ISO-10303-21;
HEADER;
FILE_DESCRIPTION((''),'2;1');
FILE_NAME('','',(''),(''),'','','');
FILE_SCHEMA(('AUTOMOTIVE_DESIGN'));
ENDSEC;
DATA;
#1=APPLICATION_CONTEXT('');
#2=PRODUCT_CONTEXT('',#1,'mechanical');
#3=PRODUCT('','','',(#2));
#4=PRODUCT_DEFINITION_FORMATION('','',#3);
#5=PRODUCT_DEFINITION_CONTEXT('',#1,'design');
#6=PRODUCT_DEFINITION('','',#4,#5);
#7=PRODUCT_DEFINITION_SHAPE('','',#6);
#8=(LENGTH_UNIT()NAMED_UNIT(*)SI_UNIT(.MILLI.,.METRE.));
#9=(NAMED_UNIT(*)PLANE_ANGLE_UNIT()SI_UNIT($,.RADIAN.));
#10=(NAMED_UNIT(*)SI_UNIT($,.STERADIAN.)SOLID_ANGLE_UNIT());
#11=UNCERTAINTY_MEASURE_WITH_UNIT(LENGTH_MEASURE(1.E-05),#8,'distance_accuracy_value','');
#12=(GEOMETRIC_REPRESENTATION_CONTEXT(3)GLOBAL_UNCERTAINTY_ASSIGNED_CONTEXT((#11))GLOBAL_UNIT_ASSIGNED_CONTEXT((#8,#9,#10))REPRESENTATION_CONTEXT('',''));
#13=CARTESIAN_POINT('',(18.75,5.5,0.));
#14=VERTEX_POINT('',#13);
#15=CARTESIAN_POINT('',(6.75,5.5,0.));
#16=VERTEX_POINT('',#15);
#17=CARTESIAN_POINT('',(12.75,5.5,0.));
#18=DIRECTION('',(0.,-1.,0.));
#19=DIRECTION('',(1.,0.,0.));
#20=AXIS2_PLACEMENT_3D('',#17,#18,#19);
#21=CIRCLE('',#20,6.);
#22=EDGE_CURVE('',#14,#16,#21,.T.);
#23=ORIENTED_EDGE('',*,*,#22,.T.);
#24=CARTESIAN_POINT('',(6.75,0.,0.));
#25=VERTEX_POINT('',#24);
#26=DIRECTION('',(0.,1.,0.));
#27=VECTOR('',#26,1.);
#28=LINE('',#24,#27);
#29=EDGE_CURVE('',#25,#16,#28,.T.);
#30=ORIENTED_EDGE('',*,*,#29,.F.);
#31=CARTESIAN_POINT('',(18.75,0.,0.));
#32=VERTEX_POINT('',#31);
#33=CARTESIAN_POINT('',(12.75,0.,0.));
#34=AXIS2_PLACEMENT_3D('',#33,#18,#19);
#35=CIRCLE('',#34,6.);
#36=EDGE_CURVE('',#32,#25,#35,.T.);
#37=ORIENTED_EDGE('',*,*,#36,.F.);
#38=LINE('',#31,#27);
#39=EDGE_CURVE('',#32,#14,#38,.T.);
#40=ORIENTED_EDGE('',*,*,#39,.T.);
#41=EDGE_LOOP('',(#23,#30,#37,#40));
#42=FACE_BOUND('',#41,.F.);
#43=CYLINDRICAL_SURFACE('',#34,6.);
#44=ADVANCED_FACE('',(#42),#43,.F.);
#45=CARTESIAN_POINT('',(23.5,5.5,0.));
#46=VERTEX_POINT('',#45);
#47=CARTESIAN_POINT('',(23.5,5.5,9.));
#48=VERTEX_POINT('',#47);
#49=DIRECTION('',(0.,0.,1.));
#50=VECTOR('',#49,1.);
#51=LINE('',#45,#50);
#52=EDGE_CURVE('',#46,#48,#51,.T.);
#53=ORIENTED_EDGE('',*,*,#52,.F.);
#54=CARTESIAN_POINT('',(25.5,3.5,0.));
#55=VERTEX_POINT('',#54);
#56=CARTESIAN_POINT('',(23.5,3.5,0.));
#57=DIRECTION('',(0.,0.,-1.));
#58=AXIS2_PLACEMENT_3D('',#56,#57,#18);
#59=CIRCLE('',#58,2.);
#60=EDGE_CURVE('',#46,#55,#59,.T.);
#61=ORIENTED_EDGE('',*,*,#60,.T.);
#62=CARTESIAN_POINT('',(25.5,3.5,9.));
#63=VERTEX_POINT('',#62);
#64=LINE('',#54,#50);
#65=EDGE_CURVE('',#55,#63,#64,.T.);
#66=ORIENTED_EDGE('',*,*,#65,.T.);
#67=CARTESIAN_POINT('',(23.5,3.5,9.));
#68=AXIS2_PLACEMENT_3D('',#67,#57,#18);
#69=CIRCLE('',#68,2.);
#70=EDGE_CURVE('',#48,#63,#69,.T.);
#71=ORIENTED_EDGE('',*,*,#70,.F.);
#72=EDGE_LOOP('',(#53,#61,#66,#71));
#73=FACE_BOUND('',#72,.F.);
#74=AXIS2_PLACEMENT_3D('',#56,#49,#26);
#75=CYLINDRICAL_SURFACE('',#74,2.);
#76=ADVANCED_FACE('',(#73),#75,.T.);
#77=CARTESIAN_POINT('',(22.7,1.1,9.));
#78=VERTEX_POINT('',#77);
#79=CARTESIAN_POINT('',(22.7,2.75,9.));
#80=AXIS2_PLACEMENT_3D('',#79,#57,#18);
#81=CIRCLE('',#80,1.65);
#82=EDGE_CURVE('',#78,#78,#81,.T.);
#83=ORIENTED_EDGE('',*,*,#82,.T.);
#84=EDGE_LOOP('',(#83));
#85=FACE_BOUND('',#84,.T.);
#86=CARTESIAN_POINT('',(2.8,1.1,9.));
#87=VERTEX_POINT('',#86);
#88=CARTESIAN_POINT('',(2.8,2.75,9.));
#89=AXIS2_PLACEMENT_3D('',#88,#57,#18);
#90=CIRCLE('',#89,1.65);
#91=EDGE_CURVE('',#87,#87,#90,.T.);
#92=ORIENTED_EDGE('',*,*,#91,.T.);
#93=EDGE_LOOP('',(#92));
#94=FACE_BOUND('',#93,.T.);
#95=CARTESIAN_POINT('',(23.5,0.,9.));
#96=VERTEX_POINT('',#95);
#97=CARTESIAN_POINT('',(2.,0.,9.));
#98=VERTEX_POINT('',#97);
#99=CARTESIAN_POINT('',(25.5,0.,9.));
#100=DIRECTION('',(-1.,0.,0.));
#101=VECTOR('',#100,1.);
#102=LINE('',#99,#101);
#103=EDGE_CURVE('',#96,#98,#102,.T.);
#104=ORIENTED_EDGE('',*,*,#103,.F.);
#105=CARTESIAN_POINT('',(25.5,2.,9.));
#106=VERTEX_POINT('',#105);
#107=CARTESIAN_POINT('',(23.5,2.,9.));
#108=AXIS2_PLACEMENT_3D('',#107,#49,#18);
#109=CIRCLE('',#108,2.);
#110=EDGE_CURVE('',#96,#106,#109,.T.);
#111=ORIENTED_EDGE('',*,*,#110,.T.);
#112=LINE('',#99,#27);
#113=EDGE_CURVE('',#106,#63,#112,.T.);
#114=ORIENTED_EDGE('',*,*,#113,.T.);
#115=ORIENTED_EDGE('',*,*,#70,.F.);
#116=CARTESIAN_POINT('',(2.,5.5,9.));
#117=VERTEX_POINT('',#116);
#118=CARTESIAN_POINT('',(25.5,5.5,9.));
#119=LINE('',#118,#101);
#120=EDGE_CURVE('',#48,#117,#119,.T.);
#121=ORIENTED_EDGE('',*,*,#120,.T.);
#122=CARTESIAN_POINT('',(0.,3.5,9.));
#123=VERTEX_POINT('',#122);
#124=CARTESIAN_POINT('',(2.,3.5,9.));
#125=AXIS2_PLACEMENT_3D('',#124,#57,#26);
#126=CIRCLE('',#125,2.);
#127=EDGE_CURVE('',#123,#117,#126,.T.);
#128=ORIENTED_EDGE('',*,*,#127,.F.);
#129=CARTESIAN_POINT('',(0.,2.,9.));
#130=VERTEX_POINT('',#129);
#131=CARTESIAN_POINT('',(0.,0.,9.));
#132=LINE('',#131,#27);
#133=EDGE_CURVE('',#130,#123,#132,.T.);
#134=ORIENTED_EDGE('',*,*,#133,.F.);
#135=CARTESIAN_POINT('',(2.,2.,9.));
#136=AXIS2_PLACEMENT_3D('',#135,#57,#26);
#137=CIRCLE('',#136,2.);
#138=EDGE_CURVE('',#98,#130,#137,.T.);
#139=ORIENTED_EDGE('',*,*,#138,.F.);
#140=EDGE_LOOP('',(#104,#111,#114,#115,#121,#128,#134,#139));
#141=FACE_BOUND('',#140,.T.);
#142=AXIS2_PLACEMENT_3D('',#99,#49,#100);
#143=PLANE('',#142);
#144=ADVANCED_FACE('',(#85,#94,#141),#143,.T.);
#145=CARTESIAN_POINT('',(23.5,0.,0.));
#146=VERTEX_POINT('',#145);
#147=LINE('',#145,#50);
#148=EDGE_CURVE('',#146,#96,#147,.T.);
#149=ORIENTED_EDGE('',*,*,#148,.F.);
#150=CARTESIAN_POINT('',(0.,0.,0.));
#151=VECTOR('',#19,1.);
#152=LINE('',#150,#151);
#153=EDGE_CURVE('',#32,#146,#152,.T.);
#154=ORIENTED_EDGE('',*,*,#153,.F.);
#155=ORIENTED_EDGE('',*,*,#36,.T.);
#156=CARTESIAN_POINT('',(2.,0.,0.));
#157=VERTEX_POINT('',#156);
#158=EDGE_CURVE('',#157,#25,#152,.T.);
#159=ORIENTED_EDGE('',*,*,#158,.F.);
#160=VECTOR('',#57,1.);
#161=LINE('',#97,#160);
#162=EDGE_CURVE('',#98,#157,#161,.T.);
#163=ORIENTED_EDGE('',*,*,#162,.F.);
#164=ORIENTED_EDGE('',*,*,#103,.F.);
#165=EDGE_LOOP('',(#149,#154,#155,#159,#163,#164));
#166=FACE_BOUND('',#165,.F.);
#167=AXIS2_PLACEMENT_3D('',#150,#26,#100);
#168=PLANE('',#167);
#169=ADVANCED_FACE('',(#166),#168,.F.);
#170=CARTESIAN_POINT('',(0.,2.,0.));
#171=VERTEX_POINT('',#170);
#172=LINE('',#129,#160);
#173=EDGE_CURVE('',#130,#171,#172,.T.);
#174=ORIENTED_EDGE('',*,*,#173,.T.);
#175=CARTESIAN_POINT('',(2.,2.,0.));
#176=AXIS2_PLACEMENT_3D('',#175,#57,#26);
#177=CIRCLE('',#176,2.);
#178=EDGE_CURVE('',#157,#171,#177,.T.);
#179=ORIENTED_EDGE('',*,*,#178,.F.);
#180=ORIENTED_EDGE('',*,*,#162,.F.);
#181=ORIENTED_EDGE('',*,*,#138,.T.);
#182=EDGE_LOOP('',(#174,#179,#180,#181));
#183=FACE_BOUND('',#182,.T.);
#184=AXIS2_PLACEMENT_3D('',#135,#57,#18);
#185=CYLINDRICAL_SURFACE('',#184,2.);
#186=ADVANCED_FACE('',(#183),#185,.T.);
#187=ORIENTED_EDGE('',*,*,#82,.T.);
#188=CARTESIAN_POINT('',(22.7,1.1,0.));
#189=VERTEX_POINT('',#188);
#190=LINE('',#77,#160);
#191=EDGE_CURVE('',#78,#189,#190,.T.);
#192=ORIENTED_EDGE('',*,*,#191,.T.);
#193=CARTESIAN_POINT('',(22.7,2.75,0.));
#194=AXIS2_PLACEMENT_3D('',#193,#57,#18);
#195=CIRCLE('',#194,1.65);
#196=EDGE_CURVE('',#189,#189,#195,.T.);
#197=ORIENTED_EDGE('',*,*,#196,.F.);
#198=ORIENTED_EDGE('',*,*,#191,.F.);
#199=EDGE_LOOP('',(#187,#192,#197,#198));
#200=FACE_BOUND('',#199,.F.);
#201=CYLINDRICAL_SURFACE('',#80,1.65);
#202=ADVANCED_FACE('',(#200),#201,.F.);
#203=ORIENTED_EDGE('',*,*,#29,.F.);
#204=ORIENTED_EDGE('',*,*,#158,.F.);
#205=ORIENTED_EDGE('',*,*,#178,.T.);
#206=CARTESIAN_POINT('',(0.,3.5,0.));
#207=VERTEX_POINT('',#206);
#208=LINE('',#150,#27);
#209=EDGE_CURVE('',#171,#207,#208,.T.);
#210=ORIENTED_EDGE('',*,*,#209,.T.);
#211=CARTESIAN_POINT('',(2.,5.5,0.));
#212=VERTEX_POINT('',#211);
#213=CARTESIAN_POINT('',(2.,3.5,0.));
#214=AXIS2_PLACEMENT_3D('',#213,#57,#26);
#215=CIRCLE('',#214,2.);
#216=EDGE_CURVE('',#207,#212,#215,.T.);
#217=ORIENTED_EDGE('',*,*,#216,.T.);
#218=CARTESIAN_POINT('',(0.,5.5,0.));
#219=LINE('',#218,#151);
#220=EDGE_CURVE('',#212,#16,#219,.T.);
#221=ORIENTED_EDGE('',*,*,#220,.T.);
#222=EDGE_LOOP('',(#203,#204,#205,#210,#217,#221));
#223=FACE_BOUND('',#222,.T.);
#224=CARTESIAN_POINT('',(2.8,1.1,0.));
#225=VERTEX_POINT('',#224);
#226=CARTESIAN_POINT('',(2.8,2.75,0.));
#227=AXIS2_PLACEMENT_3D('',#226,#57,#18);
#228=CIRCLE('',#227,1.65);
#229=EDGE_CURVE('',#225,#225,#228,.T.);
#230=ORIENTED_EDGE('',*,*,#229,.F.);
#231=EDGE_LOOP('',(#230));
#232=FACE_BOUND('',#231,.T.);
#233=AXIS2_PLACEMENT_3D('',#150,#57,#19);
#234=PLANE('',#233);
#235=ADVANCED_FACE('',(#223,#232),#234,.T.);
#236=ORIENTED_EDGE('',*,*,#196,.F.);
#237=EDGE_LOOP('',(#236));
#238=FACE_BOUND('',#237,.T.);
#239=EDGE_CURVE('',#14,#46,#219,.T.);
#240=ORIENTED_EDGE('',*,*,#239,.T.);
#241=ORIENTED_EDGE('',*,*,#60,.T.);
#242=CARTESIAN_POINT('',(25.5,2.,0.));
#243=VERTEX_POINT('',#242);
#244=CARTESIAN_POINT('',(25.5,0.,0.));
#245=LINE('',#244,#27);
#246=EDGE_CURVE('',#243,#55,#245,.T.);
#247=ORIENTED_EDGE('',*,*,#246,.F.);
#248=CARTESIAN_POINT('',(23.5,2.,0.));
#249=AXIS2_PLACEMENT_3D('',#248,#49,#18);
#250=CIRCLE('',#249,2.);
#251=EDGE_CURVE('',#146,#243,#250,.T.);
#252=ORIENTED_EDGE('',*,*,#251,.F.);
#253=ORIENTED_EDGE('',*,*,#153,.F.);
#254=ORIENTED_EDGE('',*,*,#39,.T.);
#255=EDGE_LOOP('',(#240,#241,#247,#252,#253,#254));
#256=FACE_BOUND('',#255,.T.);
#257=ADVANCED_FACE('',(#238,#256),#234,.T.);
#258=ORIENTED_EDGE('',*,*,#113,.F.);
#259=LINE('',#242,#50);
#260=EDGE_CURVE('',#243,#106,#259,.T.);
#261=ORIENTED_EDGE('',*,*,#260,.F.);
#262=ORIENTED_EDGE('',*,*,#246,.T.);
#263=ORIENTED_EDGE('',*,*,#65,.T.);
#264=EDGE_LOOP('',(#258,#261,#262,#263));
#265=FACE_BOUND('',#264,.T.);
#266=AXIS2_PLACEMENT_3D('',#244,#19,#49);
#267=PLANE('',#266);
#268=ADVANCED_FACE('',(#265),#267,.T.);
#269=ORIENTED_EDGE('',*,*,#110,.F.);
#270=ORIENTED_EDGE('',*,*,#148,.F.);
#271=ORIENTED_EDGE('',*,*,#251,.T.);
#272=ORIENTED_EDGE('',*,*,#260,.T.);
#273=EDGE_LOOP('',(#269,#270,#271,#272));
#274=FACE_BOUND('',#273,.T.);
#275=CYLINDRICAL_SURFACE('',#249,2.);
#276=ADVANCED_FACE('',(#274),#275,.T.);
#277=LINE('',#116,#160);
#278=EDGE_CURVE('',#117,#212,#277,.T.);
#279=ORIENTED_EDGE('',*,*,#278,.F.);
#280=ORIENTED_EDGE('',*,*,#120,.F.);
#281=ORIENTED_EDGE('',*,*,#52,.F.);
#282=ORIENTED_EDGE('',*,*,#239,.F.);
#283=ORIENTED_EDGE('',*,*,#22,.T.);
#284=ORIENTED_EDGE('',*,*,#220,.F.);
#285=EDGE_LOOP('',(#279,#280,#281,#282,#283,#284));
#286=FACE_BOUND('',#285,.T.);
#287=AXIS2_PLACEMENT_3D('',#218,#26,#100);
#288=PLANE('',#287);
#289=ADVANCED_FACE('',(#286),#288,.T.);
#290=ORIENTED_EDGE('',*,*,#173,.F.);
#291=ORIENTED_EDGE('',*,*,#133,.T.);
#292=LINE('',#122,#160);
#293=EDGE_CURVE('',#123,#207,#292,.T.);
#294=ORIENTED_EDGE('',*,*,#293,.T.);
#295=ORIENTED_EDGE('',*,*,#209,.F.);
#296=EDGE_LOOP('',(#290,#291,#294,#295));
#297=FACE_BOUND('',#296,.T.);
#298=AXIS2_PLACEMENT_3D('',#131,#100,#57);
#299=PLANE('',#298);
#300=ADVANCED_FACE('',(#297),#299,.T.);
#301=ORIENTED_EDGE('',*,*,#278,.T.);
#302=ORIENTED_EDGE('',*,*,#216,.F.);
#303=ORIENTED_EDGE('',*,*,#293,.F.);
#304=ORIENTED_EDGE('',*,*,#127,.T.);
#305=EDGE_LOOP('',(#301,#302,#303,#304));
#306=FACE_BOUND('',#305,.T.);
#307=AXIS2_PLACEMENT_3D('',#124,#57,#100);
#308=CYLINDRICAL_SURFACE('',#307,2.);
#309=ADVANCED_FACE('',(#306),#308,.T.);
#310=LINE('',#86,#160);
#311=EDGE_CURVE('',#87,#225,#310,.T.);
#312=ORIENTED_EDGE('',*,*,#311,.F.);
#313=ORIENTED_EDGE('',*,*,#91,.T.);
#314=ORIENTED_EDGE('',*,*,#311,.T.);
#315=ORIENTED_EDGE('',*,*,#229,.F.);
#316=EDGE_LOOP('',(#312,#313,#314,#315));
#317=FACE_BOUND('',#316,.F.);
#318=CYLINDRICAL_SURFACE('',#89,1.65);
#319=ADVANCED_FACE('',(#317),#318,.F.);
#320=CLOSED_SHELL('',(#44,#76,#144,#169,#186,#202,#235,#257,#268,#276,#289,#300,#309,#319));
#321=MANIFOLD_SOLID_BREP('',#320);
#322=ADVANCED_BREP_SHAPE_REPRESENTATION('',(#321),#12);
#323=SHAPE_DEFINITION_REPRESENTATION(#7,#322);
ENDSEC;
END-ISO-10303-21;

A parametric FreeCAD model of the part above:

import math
import FreeCAD as App
import Part
import Sketcher

V = App.Vector
Q = App.Units.Quantity


def edges_at(feature, points):
    """Names of the edges that pass closest to the given points."""
    edges = feature.Shape.Edges
    near = lambda p: min(range(len(edges)), key=lambda i: edges[i].distToShape(Part.Vertex(*p))[0])
    return sorted({f"Edge{near(p) + 1}" for p in points})


def add_polygon(sketch, points):
    """Adds a closed chain of lines whose ends are joined by coincident constraints."""
    first, n = sketch.GeometryCount, len(points)
    for a, b in zip(points, points[1:] + points[:1]):
        sketch.addGeometry(Part.LineSegment(App.Vector(*a, 0), App.Vector(*b, 0)), False)
    for i in range(n):
        sketch.addConstraint(Sketcher.Constraint("Coincident", first + i, 2, first + (i + 1) % n, 1))

doc = App.newDocument("Part")
body = doc.addObject("PartDesign::Body", "Body")

# Sketch on XZ plane
sketch1 = body.newObject("Sketcher::SketchObject", "Sketch")
sketch1.AttachmentSupport = (doc.getObject("XZ_Plane"), [""])
sketch1.MapMode = "FlatFace"
add_polygon(sketch1, [(26, 0), (0, 0), (0, 9), (26, 9)])  # lines 0-3
sketch1.addConstraint([
    Sketcher.Constraint("Horizontal", 0),
    Sketcher.Constraint("Vertical", 1),
    Sketcher.Constraint("Horizontal", 2),
    Sketcher.Constraint("Vertical", 3),
    Sketcher.Constraint("Coincident", 0, 2, -1, 1),
    Sketcher.Constraint("DistanceY", 1, 1, 1, 2, Q("9 mm")),
    Sketcher.Constraint("DistanceX", 0, 2, 0, 1, Q("25.5 mm")),
])
pad1 = body.newObject("PartDesign::Pad", "Pad")
pad1.Profile = sketch1
pad1.Length = 5.5
pad1.Reversed = True

# Sketch on XZ plane
sketch2 = body.newObject("Sketcher::SketchObject", "Sketch001")
sketch2.AttachmentSupport = (doc.getObject("XZ_Plane"), [""])
sketch2.MapMode = "FlatFace"
sketch2.addGeometry([
    Part.LineSegment(V(7, 0, 0), V(19, 0, 0)),
    Part.ArcOfCircle(Part.Circle(V(13, 0, 0), V(0, 0, 1), 6), math.radians(0), math.radians(180)),
], False)
sketch2.addConstraint([
    Sketcher.Constraint("Coincident", 0, 1, 1, 2),
    Sketcher.Constraint("Coincident", 1, 1, 0, 2),
    Sketcher.Constraint("Horizontal", 0),
    Sketcher.Constraint("PointOnObject", 1, 3, -1),
    Sketcher.Constraint("PointOnObject", 0, 1, -1),
    Sketcher.Constraint("Radius", 1, Q("6 mm")),
    Sketcher.Constraint("DistanceX", -1, 1, 1, 3, Q("12.75 mm")),
])
pocket1 = body.newObject("PartDesign::Pocket", "Pocket")
pocket1.Profile = sketch2
pocket1.Type = "ThroughAll"

# Sketch on XY plane
sketch3 = body.newObject("Sketcher::SketchObject", "Sketch002")
sketch3.AttachmentSupport = (doc.getObject("XY_Plane"), [""])
sketch3.MapMode = "FlatFace"
sketch3.AttachmentOffset = App.Placement(V(0, 0, 9), App.Rotation())
sketch3.addGeometry([
    Part.Circle(V(2.8, 2.8, 0), V(0, 0, 1), 1.6),
    Part.Circle(V(22.7, 2.8, 0), V(0, 0, 1), 1.6),
], False)
sketch3.addConstraint([
    Sketcher.Constraint("Equal", 0, 1),
    Sketcher.Constraint("Horizontal", 0, 3, 1, 3),
    Sketcher.Constraint("Diameter", 0, Q("3.3 mm")),
    Sketcher.Constraint("DistanceX", -1, 1, 0, 3, Q("2.8 mm")),
    Sketcher.Constraint("DistanceX", -1, 1, 1, 3, Q("22.7 mm")),
    Sketcher.Constraint("DistanceY", -1, 1, 0, 3, Q("2.75 mm")),
])
doc.recompute()
hole = body.newObject("PartDesign::Hole", "Hole")
hole.Profile = sketch3
hole.ThreadType = "None"
hole.Diameter = 3.3
hole.DepthType = "ThroughAll"
doc.recompute()

fillet = body.newObject("PartDesign::Fillet", "Fillet")
fillet.Base = (hole, edges_at(hole, [
    (25.5, 0, 4.5),
    (25.5, 5.5, 4.5),
    (0, 0, 4.5),
    (0, 5.5, 4.5),
]))
fillet.Radius = 2

doc.recompute()
